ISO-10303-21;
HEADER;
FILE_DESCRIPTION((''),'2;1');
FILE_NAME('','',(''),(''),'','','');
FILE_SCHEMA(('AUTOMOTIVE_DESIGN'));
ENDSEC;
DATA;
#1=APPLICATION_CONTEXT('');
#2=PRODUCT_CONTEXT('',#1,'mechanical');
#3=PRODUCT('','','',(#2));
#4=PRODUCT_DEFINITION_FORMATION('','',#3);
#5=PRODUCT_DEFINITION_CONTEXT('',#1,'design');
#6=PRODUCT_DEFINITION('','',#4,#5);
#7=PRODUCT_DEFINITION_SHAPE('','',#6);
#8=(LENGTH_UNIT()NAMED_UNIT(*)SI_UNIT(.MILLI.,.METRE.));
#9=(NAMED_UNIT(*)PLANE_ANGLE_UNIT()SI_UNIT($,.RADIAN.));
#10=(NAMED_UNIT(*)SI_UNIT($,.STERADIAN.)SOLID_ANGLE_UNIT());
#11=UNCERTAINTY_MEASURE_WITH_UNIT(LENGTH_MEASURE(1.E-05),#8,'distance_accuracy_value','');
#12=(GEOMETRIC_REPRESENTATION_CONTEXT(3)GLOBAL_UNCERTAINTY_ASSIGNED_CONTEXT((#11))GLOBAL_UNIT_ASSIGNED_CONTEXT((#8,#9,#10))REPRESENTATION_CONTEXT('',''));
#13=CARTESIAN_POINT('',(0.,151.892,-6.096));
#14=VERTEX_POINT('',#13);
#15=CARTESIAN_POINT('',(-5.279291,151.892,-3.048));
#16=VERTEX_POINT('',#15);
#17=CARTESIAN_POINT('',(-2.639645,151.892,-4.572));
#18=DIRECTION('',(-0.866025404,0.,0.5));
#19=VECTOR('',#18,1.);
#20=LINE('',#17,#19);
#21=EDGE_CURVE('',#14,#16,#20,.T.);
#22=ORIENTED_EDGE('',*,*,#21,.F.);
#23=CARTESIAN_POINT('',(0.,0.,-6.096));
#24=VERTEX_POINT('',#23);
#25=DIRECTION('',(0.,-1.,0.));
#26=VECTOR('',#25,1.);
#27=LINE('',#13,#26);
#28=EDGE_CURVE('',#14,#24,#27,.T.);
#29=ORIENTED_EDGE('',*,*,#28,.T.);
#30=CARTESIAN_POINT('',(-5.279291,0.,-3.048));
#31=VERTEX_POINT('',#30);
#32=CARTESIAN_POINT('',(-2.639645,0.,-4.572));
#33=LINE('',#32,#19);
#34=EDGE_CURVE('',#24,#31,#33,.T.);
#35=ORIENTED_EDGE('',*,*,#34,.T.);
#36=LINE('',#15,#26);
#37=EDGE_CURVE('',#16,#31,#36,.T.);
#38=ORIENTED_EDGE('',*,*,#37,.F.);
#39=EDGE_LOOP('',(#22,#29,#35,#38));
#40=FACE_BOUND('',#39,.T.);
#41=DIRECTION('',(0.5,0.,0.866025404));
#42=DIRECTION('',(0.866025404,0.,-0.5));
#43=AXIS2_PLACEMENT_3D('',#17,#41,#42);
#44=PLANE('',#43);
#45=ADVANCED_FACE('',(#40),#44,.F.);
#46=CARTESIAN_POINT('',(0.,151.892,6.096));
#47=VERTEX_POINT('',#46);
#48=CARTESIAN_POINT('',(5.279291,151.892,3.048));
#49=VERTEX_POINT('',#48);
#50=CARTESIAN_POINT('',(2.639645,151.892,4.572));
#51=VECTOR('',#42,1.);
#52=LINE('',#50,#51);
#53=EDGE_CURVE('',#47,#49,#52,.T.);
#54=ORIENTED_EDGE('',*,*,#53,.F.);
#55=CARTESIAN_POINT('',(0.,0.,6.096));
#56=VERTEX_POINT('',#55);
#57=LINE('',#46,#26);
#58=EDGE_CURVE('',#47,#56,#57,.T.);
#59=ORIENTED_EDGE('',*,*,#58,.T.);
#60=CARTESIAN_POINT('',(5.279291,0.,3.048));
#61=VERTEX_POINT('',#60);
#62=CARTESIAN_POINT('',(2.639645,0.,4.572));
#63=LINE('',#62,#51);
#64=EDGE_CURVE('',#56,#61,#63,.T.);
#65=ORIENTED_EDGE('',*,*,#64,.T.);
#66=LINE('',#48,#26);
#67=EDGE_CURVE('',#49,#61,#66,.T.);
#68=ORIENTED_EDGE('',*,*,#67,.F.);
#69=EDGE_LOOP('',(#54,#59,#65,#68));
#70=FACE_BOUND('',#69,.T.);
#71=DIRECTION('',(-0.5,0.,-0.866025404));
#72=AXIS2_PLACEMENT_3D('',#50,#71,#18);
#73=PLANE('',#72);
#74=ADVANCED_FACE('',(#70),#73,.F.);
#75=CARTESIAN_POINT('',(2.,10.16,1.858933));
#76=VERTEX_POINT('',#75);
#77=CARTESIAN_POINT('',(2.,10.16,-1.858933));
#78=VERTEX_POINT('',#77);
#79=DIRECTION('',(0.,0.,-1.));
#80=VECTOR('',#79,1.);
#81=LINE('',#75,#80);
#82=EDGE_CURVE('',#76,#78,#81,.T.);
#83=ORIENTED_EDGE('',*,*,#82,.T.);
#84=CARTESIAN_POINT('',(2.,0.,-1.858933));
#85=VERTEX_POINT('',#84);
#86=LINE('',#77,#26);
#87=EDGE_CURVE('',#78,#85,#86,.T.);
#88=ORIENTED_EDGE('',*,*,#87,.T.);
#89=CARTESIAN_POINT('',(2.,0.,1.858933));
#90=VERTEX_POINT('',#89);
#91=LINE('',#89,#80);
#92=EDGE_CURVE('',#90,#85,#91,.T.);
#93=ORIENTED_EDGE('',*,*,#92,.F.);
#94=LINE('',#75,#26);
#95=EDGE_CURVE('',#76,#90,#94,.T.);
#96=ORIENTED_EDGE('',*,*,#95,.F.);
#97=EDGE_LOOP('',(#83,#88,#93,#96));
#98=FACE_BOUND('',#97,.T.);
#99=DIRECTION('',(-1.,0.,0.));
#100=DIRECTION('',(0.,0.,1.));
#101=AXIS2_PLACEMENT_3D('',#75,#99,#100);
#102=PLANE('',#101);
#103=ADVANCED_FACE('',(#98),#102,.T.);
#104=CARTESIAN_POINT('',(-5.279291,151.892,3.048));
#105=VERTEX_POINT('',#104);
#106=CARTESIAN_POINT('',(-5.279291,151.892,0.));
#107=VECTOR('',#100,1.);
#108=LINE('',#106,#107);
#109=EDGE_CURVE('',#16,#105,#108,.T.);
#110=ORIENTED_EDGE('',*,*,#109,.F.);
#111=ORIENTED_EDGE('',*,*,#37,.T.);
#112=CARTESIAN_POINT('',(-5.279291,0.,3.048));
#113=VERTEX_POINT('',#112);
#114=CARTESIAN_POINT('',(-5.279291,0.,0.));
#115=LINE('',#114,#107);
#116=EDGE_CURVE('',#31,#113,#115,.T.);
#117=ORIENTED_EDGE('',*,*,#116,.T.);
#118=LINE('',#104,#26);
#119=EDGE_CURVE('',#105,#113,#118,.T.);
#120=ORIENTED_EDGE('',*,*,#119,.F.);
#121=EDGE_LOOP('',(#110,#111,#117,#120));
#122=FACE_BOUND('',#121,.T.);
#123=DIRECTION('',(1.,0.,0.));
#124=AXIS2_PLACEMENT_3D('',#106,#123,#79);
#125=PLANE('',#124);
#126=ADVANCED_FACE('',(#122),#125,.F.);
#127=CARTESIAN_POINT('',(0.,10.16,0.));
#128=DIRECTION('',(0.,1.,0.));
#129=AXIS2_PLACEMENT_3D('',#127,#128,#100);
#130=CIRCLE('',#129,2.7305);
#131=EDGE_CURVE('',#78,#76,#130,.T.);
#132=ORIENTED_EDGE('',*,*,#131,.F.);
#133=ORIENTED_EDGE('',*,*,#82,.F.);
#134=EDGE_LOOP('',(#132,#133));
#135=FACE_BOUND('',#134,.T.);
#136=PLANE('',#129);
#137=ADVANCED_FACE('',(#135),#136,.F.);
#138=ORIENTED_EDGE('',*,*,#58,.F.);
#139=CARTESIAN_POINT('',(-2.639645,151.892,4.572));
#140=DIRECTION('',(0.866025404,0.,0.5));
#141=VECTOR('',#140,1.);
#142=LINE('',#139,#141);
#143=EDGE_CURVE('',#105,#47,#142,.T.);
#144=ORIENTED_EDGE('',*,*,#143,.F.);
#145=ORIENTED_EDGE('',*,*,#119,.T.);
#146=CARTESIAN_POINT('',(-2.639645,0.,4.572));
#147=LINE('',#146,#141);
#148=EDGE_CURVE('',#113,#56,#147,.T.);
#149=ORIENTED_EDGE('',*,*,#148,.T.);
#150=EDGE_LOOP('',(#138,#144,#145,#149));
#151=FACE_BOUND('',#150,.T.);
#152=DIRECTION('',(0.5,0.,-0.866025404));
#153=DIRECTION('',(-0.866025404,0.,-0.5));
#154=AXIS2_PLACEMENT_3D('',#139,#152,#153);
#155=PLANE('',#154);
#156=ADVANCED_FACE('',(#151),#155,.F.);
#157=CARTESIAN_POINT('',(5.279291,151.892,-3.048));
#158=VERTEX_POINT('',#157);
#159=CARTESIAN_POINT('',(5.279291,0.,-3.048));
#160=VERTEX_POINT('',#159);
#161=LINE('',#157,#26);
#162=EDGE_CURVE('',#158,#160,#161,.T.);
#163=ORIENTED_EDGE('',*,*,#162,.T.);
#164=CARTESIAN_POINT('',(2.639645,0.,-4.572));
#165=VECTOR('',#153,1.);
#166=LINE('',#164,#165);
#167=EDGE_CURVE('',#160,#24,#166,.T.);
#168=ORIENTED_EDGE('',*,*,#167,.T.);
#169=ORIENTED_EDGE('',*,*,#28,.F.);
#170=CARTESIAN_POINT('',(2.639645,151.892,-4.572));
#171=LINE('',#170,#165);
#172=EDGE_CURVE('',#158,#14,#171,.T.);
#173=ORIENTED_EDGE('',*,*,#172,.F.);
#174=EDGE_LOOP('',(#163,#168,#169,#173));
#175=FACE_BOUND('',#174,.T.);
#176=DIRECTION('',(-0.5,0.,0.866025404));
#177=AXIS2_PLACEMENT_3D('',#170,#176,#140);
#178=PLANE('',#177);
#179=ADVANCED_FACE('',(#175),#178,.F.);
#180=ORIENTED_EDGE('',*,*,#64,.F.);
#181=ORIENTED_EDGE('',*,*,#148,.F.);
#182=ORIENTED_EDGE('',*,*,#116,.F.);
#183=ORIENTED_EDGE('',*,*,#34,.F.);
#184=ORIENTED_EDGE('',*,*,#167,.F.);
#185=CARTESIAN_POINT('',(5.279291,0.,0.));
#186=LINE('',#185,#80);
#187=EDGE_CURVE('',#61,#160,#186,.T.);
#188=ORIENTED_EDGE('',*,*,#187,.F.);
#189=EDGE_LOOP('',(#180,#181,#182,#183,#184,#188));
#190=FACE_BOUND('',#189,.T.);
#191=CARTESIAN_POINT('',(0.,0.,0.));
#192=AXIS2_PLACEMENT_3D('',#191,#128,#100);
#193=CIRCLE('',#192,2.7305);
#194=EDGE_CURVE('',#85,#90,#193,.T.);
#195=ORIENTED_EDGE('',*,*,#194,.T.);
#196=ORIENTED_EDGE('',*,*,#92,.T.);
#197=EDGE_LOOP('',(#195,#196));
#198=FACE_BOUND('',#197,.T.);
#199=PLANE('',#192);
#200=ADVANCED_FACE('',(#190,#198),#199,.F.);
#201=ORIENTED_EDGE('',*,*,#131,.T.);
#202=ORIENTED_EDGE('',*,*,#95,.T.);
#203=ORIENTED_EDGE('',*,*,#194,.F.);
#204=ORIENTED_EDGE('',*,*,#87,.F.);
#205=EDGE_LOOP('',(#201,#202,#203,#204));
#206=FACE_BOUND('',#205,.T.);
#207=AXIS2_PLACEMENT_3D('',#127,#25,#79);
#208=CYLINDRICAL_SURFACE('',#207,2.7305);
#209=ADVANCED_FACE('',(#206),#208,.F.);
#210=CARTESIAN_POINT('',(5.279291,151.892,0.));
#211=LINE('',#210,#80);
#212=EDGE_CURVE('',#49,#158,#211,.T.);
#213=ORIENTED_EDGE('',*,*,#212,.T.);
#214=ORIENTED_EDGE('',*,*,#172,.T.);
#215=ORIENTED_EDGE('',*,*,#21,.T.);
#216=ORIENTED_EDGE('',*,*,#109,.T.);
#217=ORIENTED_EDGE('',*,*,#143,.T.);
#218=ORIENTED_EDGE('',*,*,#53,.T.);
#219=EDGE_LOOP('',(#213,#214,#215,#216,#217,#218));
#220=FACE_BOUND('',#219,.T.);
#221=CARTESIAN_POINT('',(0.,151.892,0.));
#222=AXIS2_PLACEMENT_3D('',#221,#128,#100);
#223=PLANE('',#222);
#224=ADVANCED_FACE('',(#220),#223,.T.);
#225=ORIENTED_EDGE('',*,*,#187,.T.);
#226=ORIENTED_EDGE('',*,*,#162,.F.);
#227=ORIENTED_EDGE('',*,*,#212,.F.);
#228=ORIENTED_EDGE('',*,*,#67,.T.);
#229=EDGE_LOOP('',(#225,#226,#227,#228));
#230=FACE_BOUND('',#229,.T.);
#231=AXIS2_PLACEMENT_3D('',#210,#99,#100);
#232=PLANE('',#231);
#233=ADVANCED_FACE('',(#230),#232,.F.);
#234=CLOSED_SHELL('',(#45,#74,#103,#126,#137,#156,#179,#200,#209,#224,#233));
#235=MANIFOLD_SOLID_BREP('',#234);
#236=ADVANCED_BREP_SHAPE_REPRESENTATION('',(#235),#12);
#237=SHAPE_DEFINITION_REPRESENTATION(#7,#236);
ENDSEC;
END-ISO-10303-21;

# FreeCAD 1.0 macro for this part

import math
import FreeCAD as App
import Part
import Sketcher

V = App.Vector
Q = App.Units.Quantity

doc = App.newDocument("Part")
params = doc.addObject("Spreadsheet::Sheet", "Params")
for row, (alias, value) in enumerate([
    ("sketch1_height", "0.24 in"),
    ("sketch1_length", "0.24 in"),
    ("pad1_length", "5.98 in"),
    ("pocket1_length", "0.4 in"),
], start=1):
    params.set(f"A{row}", alias)
    params.set(f"B{row}", "=" + value)
    params.setAlias(f"B{row}", alias)

body = doc.addObject("PartDesign::Body", "Body")

# Sketch on XZ plane
sketch1 = doc.addObject("Sketcher::SketchObject", "Sketch")
body.addObject(sketch1)
sketch1.AttachmentSupport = (doc.XZ_Plane, [""])
sketch1.MapMode = "FlatFace"
sketch1.addGeometry(Part.LineSegment(V(-5, 3, 0), V(0, 6, 0)), False)
sketch1.addGeometry(Part.LineSegment(V(0, 6, 0), V(5, 3, 0)), False)
sketch1.addGeometry(Part.LineSegment(V(5, 3, 0), V(5, -3, 0)), False)
sketch1.addGeometry(Part.LineSegment(V(5, -3, 0), V(0, -6, 0)), False)
sketch1.addGeometry(Part.LineSegment(V(0, -6, 0), V(-5, -3, 0)), False)
sketch1.addGeometry(Part.LineSegment(V(-5, -3, 0), V(-5, 3, 0)), False)
sketch1.addConstraint(Sketcher.Constraint("Coincident", 0, 2, 1, 1))
sketch1.addConstraint(Sketcher.Constraint("Coincident", 1, 2, 2, 1))
sketch1.addConstraint(Sketcher.Constraint("Coincident", 2, 2, 3, 1))
sketch1.addConstraint(Sketcher.Constraint("Coincident", 3, 2, 4, 1))
sketch1.addConstraint(Sketcher.Constraint("Coincident", 4, 2, 5, 1))
sketch1.addConstraint(Sketcher.Constraint("Coincident", 5, 2, 0, 1))
sketch1.addConstraint(Sketcher.Constraint("Vertical", 2))
sketch1.addConstraint(Sketcher.Constraint("Vertical", 5))
sketch1.addConstraint(Sketcher.Constraint("Symmetric", 0, 2, 3, 2, -1, 1))
sketch1.addConstraint(Sketcher.Constraint("Symmetric", 1, 2, 4, 2, -1, 1))
sketch1.addConstraint(Sketcher.Constraint("PointOnObject", 0, 2, -2))
sketch1.addConstraint(Sketcher.Constraint("Parallel", 0, 3))
sketch1.addConstraint(Sketcher.Constraint("Horizontal", 2, 2, 4, 2))
sketch1.addConstraint(Sketcher.Constraint("Angle", 0, Q("30 deg")))
sketch1.addConstraint(Sketcher.Constraint("DistanceY", 2, 2, 2, 1, Q("0.24 in")))
sketch1.addConstraint(Sketcher.Constraint("Distance", 0, Q("0.24 in")))
sketch1.setExpression("Constraints[14]", "Params.sketch1_height")
sketch1.setExpression("Constraints[15]", "Params.sketch1_length")
pad1 = doc.addObject("PartDesign::Pad", "Pad")
body.addObject(pad1)
pad1.Profile = sketch1
pad1.setExpression("Length", "Params.pad1_length")
pad1.Reversed = True

# Sketch on XZ plane
sketch2 = doc.addObject("Sketcher::SketchObject", "Sketch001")
body.addObject(sketch2)
sketch2.AttachmentSupport = (doc.XZ_Plane, [""])
sketch2.MapMode = "FlatFace"
sketch2.addGeometry(Part.LineSegment(V(2, 1.9, 0), V(2, -1.9, 0)), False)
sketch2.addGeometry(Part.ArcOfCircle(Part.Circle(V(0, 0, 0), V(0, 0, 1), 2.7), math.radians(43), math.radians(317)), False)
sketch2.addConstraint(Sketcher.Constraint("Coincident", 0, 1, 1, 1))
sketch2.addConstraint(Sketcher.Constraint("Coincident", 1, 2, 0, 2))
sketch2.addConstraint(Sketcher.Constraint("Vertical", 0))
sketch2.addConstraint(Sketcher.Constraint("Coincident", 1, 3, -1, 1))
sketch2.addConstraint(Sketcher.Constraint("Radius", 1, Q("0.1075 in")))
sketch2.addConstraint(Sketcher.Constraint("DistanceX", -1, 1, 0, 1, Q("2 mm")))
pocket1 = doc.addObject("PartDesign::Pocket", "Pocket")
body.addObject(pocket1)
pocket1.Profile = sketch2
pocket1.setExpression("Length", "Params.pocket1_length")

doc.recompute()
